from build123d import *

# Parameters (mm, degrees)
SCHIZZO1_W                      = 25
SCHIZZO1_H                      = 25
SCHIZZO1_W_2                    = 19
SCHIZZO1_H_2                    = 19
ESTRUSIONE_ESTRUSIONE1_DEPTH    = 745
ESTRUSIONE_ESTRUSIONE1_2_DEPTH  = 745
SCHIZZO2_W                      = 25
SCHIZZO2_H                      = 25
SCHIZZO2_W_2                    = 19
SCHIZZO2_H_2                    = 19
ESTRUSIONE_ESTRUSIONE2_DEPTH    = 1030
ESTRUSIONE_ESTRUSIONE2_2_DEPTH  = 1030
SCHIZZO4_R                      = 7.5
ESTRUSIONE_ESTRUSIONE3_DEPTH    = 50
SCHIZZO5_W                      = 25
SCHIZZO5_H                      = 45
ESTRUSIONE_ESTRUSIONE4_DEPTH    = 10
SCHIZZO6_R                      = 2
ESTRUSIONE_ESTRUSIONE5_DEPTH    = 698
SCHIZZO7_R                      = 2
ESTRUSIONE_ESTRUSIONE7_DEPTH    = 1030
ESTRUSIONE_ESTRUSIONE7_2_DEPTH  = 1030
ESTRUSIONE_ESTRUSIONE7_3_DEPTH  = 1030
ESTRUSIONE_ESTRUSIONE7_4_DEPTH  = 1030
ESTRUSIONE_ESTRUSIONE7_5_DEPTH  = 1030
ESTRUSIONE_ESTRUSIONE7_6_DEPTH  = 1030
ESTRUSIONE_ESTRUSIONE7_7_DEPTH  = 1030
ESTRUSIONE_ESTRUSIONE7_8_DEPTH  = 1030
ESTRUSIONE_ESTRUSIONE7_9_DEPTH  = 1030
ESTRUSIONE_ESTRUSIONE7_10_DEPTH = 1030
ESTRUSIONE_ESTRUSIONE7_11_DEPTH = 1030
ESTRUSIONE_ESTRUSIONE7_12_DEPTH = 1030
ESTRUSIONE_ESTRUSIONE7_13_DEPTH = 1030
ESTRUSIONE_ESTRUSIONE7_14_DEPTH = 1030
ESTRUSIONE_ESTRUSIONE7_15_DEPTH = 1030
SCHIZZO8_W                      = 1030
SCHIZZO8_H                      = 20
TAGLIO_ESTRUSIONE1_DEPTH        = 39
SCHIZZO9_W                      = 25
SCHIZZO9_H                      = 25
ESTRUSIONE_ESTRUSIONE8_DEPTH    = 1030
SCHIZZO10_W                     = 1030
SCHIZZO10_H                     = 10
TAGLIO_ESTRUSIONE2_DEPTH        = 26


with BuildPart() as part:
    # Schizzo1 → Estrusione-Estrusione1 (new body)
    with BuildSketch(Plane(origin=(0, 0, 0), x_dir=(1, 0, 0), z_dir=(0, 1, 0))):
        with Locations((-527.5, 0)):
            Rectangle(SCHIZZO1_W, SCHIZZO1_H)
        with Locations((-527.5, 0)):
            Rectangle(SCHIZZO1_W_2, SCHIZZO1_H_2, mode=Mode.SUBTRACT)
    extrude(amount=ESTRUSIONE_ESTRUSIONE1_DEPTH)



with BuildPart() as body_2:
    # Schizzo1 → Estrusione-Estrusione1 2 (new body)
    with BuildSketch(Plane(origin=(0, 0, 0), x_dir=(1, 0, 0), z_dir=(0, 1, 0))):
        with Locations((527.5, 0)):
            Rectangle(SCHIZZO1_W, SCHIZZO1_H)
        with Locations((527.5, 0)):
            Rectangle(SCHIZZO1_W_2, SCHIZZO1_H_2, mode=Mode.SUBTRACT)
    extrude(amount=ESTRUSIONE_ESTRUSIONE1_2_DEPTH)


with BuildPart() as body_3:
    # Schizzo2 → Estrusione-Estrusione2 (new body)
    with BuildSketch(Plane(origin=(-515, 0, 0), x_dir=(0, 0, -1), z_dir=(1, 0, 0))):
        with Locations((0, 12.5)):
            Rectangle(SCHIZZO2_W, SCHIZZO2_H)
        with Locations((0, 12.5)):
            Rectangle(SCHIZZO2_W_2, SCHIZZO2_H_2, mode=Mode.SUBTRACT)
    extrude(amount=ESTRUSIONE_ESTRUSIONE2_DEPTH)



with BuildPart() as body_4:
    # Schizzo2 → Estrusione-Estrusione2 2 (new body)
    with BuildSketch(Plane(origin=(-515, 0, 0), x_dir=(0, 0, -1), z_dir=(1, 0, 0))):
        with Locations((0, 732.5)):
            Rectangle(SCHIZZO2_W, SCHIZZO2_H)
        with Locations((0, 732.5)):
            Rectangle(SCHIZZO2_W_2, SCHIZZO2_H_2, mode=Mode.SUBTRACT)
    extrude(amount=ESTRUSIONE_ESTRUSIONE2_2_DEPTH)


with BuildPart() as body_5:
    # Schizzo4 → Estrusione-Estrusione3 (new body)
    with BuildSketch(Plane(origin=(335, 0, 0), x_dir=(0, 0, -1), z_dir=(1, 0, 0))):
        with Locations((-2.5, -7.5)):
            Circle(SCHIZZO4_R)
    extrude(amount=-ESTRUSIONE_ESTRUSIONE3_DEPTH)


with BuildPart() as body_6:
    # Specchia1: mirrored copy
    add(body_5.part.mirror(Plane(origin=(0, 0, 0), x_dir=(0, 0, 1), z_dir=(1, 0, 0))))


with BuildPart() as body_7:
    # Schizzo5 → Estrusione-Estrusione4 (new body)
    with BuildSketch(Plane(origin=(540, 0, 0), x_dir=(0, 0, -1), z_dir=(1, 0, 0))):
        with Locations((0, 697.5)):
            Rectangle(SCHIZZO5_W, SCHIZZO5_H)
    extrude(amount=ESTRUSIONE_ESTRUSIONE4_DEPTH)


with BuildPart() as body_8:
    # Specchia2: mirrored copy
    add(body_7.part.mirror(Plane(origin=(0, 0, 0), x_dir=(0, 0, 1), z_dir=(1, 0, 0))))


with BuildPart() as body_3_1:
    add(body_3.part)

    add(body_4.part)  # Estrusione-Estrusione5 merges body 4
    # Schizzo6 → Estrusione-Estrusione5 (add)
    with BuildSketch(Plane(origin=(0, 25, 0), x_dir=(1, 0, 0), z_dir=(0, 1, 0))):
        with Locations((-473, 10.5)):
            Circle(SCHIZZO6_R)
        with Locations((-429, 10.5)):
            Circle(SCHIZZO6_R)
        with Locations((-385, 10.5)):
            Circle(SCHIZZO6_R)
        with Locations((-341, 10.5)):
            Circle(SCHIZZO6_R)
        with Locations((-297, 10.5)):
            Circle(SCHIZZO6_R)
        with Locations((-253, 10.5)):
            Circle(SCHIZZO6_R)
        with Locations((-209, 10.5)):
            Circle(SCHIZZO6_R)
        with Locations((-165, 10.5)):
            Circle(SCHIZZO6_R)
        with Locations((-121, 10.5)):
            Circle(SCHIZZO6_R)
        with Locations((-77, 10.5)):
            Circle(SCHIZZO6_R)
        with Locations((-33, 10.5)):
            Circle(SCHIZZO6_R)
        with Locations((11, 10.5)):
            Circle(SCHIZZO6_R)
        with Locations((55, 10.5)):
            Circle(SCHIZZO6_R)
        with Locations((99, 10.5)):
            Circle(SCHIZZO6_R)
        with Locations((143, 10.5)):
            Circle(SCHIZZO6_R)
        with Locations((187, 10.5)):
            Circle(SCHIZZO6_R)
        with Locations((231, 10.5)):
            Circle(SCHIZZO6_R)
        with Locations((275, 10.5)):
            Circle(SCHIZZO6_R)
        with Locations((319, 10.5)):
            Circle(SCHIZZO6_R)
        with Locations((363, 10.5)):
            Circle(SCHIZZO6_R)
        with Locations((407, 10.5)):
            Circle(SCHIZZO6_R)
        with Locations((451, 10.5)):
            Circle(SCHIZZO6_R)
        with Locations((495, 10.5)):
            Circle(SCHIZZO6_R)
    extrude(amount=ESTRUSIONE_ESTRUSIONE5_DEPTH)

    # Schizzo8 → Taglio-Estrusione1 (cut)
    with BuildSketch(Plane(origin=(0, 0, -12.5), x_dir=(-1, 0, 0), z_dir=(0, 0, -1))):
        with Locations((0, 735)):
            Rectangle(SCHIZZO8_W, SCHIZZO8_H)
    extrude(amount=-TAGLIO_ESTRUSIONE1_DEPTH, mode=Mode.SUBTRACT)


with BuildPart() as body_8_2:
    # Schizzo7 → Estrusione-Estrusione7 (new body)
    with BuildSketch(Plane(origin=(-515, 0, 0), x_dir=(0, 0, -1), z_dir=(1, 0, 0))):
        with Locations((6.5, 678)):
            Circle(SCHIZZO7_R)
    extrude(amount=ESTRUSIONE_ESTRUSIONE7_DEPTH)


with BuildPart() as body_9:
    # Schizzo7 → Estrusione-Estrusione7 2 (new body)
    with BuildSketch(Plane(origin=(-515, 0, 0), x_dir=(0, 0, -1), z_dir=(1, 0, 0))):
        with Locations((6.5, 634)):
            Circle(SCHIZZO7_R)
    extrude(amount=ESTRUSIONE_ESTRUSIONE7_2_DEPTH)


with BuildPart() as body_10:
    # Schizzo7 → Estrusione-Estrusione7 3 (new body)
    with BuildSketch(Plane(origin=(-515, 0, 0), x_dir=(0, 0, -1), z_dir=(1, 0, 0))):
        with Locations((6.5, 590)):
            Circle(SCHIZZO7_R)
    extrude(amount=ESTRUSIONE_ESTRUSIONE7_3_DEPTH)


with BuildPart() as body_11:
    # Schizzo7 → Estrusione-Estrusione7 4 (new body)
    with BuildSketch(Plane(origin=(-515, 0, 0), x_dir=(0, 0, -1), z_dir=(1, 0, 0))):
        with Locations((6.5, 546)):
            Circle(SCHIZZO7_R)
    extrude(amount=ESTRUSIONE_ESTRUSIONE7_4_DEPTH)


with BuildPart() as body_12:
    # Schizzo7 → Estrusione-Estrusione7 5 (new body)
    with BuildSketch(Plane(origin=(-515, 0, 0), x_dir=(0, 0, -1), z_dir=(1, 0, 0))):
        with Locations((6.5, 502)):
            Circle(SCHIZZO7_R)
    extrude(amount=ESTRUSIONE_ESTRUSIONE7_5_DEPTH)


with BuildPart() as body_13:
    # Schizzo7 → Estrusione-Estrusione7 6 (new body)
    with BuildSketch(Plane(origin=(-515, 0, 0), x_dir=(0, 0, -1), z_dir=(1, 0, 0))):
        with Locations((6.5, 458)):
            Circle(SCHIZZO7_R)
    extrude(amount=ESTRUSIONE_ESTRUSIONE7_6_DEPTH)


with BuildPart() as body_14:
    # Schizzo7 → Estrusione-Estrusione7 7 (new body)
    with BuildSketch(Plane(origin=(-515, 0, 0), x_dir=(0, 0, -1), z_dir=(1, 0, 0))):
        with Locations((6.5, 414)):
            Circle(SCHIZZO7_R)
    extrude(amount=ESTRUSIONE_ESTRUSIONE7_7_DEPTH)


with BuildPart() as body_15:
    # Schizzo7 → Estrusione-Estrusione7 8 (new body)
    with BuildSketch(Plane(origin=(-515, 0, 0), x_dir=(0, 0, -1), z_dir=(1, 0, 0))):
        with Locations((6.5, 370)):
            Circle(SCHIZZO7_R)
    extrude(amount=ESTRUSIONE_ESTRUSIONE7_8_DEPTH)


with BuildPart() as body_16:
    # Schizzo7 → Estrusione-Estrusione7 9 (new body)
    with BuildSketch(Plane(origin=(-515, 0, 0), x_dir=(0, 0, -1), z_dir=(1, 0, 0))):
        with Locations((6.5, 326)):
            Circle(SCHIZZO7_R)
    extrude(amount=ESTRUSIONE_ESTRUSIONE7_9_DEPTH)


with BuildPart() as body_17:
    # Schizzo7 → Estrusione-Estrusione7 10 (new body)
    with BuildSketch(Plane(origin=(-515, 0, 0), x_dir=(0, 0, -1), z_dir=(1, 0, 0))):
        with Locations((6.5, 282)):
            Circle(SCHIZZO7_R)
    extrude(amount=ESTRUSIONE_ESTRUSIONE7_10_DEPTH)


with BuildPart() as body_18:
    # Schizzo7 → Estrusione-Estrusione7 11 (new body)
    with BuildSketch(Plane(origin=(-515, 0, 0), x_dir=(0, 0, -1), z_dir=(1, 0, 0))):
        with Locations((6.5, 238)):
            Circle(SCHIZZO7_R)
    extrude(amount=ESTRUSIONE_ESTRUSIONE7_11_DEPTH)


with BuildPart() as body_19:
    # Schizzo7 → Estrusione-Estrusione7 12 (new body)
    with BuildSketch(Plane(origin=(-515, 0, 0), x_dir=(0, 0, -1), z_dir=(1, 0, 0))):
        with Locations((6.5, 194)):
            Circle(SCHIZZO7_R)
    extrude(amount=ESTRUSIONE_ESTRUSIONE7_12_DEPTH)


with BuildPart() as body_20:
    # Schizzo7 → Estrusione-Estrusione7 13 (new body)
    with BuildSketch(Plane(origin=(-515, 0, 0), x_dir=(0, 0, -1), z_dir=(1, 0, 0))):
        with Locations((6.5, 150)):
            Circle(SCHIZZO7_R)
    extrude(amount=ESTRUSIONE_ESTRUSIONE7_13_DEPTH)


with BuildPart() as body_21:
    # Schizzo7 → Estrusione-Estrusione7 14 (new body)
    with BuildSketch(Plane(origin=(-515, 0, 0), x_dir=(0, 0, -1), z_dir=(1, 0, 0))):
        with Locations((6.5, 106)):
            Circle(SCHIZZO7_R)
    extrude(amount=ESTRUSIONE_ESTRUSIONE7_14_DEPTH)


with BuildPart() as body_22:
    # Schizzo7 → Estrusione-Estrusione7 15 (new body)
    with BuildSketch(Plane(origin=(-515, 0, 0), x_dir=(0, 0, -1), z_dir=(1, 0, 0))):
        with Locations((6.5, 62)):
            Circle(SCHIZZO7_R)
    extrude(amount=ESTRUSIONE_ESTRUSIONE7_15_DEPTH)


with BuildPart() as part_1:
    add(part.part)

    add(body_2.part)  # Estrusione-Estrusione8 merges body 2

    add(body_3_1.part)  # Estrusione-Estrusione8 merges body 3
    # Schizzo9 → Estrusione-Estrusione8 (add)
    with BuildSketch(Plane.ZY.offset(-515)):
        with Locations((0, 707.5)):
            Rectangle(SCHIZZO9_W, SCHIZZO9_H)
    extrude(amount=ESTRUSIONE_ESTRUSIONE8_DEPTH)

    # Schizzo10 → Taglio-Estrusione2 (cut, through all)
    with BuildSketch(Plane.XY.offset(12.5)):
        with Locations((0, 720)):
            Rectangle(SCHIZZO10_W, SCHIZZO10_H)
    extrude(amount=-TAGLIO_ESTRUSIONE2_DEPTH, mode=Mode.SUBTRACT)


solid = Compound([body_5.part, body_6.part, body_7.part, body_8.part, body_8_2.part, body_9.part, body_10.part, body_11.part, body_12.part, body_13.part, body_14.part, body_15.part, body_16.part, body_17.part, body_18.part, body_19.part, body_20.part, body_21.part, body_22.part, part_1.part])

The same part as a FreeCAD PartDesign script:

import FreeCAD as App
import Part
import Sketcher
Q = App.Units.Quantity


def add_polygon(sketch, points):
    """Adds a closed chain of lines whose ends are joined by coincident constraints."""
    first, n = sketch.GeometryCount, len(points)
    for a, b in zip(points, points[1:] + points[:1]):
        sketch.addGeometry(Part.LineSegment(App.Vector(*a, 0), App.Vector(*b, 0)), False)
    for i in range(n):
        sketch.addConstraint(Sketcher.Constraint("Coincident", first + i, 2, first + (i + 1) % n, 1))

doc = App.newDocument("Part")
body = doc.addObject("PartDesign::Body", "Body")

# Sketch on XZ plane
sketch1 = doc.addObject("Sketcher::SketchObject", "Sketch")
body.addObject(sketch1)
sketch1.AttachmentSupport = (doc.XZ_Plane, [""])
sketch1.MapMode = "FlatFace"
add_polygon(sketch1, [(-540, -12.5), (-540, 12.5), (-515, 12.5), (-515, -12.5)])  # lines 0-3
add_polygon(sketch1, [(-518, 9.5), (-537, 9.5), (-537, -9.5), (-518, -9.5)])  # lines 4-7
sketch1.addConstraint([
    Sketcher.Constraint("Vertical", 0),
    Sketcher.Constraint("Horizontal", 1),
    Sketcher.Constraint("Vertical", 2),
    Sketcher.Constraint("Horizontal", 3),
    Sketcher.Constraint("Horizontal", 4),
    Sketcher.Constraint("Vertical", 5),
    Sketcher.Constraint("Horizontal", 6),
    Sketcher.Constraint("Vertical", 7),
    Sketcher.Constraint("Equal", 3, 0),
    Sketcher.Constraint("Equal", 6, 5),
    Sketcher.Constraint("DistanceX", 1, 1, 1, 2, Q("25 mm")),
    Sketcher.Constraint("DistanceX", 4, 2, 4, 1, Q("19 mm")),
    Sketcher.Constraint("DistanceX", 0, 2, -1, 1, Q("540 mm")),
    Sketcher.Constraint("DistanceX", 4, 2, -1, 1, Q("537 mm")),
    Sketcher.Constraint("DistanceY", 4, 2, 0, 2, Q("3 mm")),
    Sketcher.Constraint("DistanceY", -1, 1, 0, 2, Q("12.5 mm")),
])
pad1 = doc.addObject("PartDesign::Pad", "Pad")
body.addObject(pad1)
pad1.Profile = sketch1
pad1.Length = 745
pad1.Reversed = True
body2 = doc.addObject("PartDesign::Body", "Body001")

# Sketch on XZ plane
sketch2 = doc.addObject("Sketcher::SketchObject", "Sketch001")
body2.addObject(sketch2)
sketch2.AttachmentSupport = (doc.getObject("XZ_Plane001"), [""])
sketch2.MapMode = "FlatFace"
add_polygon(sketch2, [(515, -12.5), (515, 12.5), (540, 12.5), (540, -12.5)])  # lines 0-3
add_polygon(sketch2, [(537, 9.5), (518, 9.5), (518, -9.5), (537, -9.5)])  # lines 4-7
sketch2.addConstraint([
    Sketcher.Constraint("Vertical", 0),
    Sketcher.Constraint("Horizontal", 1),
    Sketcher.Constraint("Vertical", 2),
    Sketcher.Constraint("Horizontal", 3),
    Sketcher.Constraint("Horizontal", 4),
    Sketcher.Constraint("Vertical", 5),
    Sketcher.Constraint("Horizontal", 6),
    Sketcher.Constraint("Vertical", 7),
    Sketcher.Constraint("Equal", 3, 0),
    Sketcher.Constraint("Equal", 6, 5),
    Sketcher.Constraint("DistanceX", 1, 1, 1, 2, Q("25 mm")),
    Sketcher.Constraint("DistanceX", 4, 2, 4, 1, Q("19 mm")),
    Sketcher.Constraint("DistanceX", -1, 1, 0, 2, Q("515 mm")),
    Sketcher.Constraint("DistanceX", -1, 1, 4, 2, Q("518 mm")),
    Sketcher.Constraint("DistanceY", 4, 2, 0, 2, Q("3 mm")),
    Sketcher.Constraint("DistanceY", -1, 1, 0, 2, Q("12.5 mm")),
])
pad2 = doc.addObject("PartDesign::Pad", "Pad001")
body2.addObject(pad2)
pad2.Profile = sketch2
pad2.Length = 745
pad2.Reversed = True
body3 = doc.addObject("PartDesign::Body", "Body002")

# Sketch on YZ plane
sketch3 = doc.addObject("Sketcher::SketchObject", "Sketch002")
body3.addObject(sketch3)
sketch3.AttachmentSupport = (doc.getObject("YZ_Plane002"), [""])
sketch3.MapMode = "FlatFace"
sketch3.AttachmentOffset = App.Placement(App.Vector(0, 0, -515), App.Rotation())
add_polygon(sketch3, [(25, 12.5), (0, 12.5), (0, -12.5), (25, -12.5)])  # lines 0-3
add_polygon(sketch3, [(3, -9.5), (3, 9.5), (22, 9.5), (22, -9.5)])  # lines 4-7
sketch3.addConstraint([
    Sketcher.Constraint("Horizontal", 0),
    Sketcher.Constraint("Vertical", 1),
    Sketcher.Constraint("Horizontal", 2),
    Sketcher.Constraint("Vertical", 3),
    Sketcher.Constraint("Vertical", 4),
    Sketcher.Constraint("Horizontal", 5),
    Sketcher.Constraint("Vertical", 6),
    Sketcher.Constraint("Horizontal", 7),
    Sketcher.Constraint("Symmetric", 0, 2, 1, 2, -1, 1),
    Sketcher.Constraint("Equal", 2, 1),
    Sketcher.Constraint("Equal", 7, 4),
    Sketcher.Constraint("DistanceX", 0, 2, 0, 1, Q("25 mm")),
    Sketcher.Constraint("DistanceX", 5, 1, 5, 2, Q("19 mm")),
    Sketcher.Constraint("DistanceX", -1, 1, 4, 2, Q("3 mm")),
    Sketcher.Constraint("DistanceY", 4, 2, 0, 2, Q("3 mm")),
])
pad3 = doc.addObject("PartDesign::Pad", "Pad002")
body3.addObject(pad3)
pad3.Profile = sketch3
pad3.Length = 1030
body4 = doc.addObject("PartDesign::Body", "Body003")

# Sketch on YZ plane
sketch4 = doc.addObject("Sketcher::SketchObject", "Sketch003")
body4.addObject(sketch4)
sketch4.AttachmentSupport = (doc.getObject("YZ_Plane003"), [""])
sketch4.MapMode = "FlatFace"
sketch4.AttachmentOffset = App.Placement(App.Vector(0, 0, -515), App.Rotation())
add_polygon(sketch4, [(745, 12.5), (720, 12.5), (720, -12.5), (745, -12.5)])  # lines 0-3
add_polygon(sketch4, [(723, -9.5), (723, 9.5), (742, 9.5), (742, -9.5)])  # lines 4-7
sketch4.addConstraint([
    Sketcher.Constraint("Horizontal", 0),
    Sketcher.Constraint("Vertical", 1),
    Sketcher.Constraint("Horizontal", 2),
    Sketcher.Constraint("Vertical", 3),
    Sketcher.Constraint("Vertical", 4),
    Sketcher.Constraint("Horizontal", 5),
    Sketcher.Constraint("Vertical", 6),
    Sketcher.Constraint("Horizontal", 7),
    Sketcher.Constraint("Equal", 2, 1),
    Sketcher.Constraint("Equal", 7, 4),
    Sketcher.Constraint("DistanceX", 0, 2, 0, 1, Q("25 mm")),
    Sketcher.Constraint("DistanceX", 5, 1, 5, 2, Q("19 mm")),
    Sketcher.Constraint("DistanceX", -1, 1, 0, 2, Q("720 mm")),
    Sketcher.Constraint("DistanceX", -1, 1, 4, 2, Q("723 mm")),
    Sketcher.Constraint("DistanceY", 4, 2, 0, 2, Q("3 mm")),
    Sketcher.Constraint("DistanceY", -1, 1, 0, 2, Q("12.5 mm")),
])
pad4 = doc.addObject("PartDesign::Pad", "Pad003")
body4.addObject(pad4)
pad4.Profile = sketch4
pad4.Length = 1030
body5 = doc.addObject("PartDesign::Body", "Body004")

# Sketch on YZ plane
sketch5 = doc.addObject("Sketcher::SketchObject", "Sketch004")
body5.addObject(sketch5)
sketch5.AttachmentSupport = (doc.getObject("YZ_Plane004"), [""])
sketch5.MapMode = "FlatFace"
sketch5.AttachmentOffset = App.Placement(App.Vector(0, 0, 335), App.Rotation())
sketch5.addGeometry(Part.Circle(App.Vector(-7.5, 2.5, 0), App.Vector(0, 0, 1), 7.5), False)
sketch5.addConstraint([
    Sketcher.Constraint("Diameter", 0, Q("15 mm")),
    Sketcher.Constraint("DistanceX", 0, 3, -1, 1, Q("7.5 mm")),
    Sketcher.Constraint("DistanceY", -1, 1, 0, 3, Q("2.5 mm")),
])
pad5 = doc.addObject("PartDesign::Pad", "Pad004")
body5.addObject(pad5)
pad5.Profile = sketch5
pad5.Length = 50
pad5.Reversed = True
body6 = doc.addObject("PartDesign::Body", "Body005")
doc.recompute()

mirroring = doc.addObject("Part::Mirroring", "Mirroring")
mirroring.Source = body5
mirroring.Base = App.Vector(0, 0, 0)
mirroring.Normal = App.Vector(1, 0, 0)
body6.BaseFeature = mirroring
doc.recompute()
body7 = doc.addObject("PartDesign::Body", "Body006")

# Sketch on YZ plane
sketch6 = doc.addObject("Sketcher::SketchObject", "Sketch005")
body7.addObject(sketch6)
sketch6.AttachmentSupport = (doc.getObject("YZ_Plane006"), [""])
sketch6.MapMode = "FlatFace"
sketch6.AttachmentOffset = App.Placement(App.Vector(0, 0, 540), App.Rotation())
add_polygon(sketch6, [(720, 12.5), (675, 12.5), (675, -12.5), (720, -12.5)])  # lines 0-3
sketch6.addConstraint([
    Sketcher.Constraint("Horizontal", 0),
    Sketcher.Constraint("Vertical", 1),
    Sketcher.Constraint("Horizontal", 2),
    Sketcher.Constraint("Vertical", 3),
    Sketcher.Constraint("DistanceX", 0, 2, 0, 1, Q("45 mm")),
    Sketcher.Constraint("DistanceY", 1, 2, 1, 1, Q("25 mm")),
    Sketcher.Constraint("DistanceX", -1, 1, 0, 2, Q("675 mm")),
    Sketcher.Constraint("DistanceY", -1, 1, 0, 2, Q("12.5 mm")),
])
pad6 = doc.addObject("PartDesign::Pad", "Pad005")
body7.addObject(pad6)
pad6.Profile = sketch6
pad6.Length = 10
body8 = doc.addObject("PartDesign::Body", "Body007")
doc.recompute()

mirroring2 = doc.addObject("Part::Mirroring", "Mirroring001")
mirroring2.Source = body7
mirroring2.Base = App.Vector(0, 0, 0)
mirroring2.Normal = App.Vector(1, 0, 0)
body8.BaseFeature = mirroring2
doc.recompute()
body3.AllowCompound = True
doc.recompute()

boolean = doc.addObject("PartDesign::Boolean", "Boolean")
body3.addObject(boolean)
boolean.Type = "Fuse"
boolean.addObjects([body4])

# Sketch on XZ plane
sketch7 = doc.addObject("Sketcher::SketchObject", "Sketch006")
body3.addObject(sketch7)
sketch7.AttachmentSupport = (doc.getObject("XZ_Plane002"), [""])
sketch7.MapMode = "FlatFace"
sketch7.AttachmentOffset = App.Placement(App.Vector(0, 0, -25), App.Rotation())
sketch7.addGeometry([
    Part.Circle(App.Vector(-473, -10.5, 0), App.Vector(0, 0, 1), 2),  # 0
    Part.Circle(App.Vector(-429, -10.5, 0), App.Vector(0, 0, 1), 2),  # 1
    Part.Circle(App.Vector(-385, -10.5, 0), App.Vector(0, 0, 1), 2),  # 2
    Part.Circle(App.Vector(-341, -10.5, 0), App.Vector(0, 0, 1), 2),  # 3
    Part.Circle(App.Vector(-297, -10.5, 0), App.Vector(0, 0, 1), 2),  # 4
    Part.Circle(App.Vector(-253, -10.5, 0), App.Vector(0, 0, 1), 2),  # 5
    Part.Circle(App.Vector(-209, -10.5, 0), App.Vector(0, 0, 1), 2),  # 6
    Part.Circle(App.Vector(-165, -10.5, 0), App.Vector(0, 0, 1), 2),  # 7
    Part.Circle(App.Vector(-121, -10.5, 0), App.Vector(0, 0, 1), 2),  # 8
    Part.Circle(App.Vector(-77, -10.5, 0), App.Vector(0, 0, 1), 2),  # 9
    Part.Circle(App.Vector(-33, -10.5, 0), App.Vector(0, 0, 1), 2),  # 10
    Part.Circle(App.Vector(11, -10.5, 0), App.Vector(0, 0, 1), 2),  # 11
    Part.Circle(App.Vector(55, -10.5, 0), App.Vector(0, 0, 1), 2),  # 12
    Part.Circle(App.Vector(99, -10.5, 0), App.Vector(0, 0, 1), 2),  # 13
    Part.Circle(App.Vector(143, -10.5, 0), App.Vector(0, 0, 1), 2),  # 14
    Part.Circle(App.Vector(187, -10.5, 0), App.Vector(0, 0, 1), 2),  # 15
    Part.Circle(App.Vector(231, -10.5, 0), App.Vector(0, 0, 1), 2),  # 16
    Part.Circle(App.Vector(275, -10.5, 0), App.Vector(0, 0, 1), 2),  # 17
    Part.Circle(App.Vector(319, -10.5, 0), App.Vector(0, 0, 1), 2),  # 18
    Part.Circle(App.Vector(363, -10.5, 0), App.Vector(0, 0, 1), 2),  # 19
    Part.Circle(App.Vector(407, -10.5, 0), App.Vector(0, 0, 1), 2),  # 20
    Part.Circle(App.Vector(451, -10.5, 0), App.Vector(0, 0, 1), 2),  # 21
    Part.Circle(App.Vector(495, -10.5, 0), App.Vector(0, 0, 1), 2),  # 22
], False)
sketch7.addConstraint([
    Sketcher.Constraint("Equal", 0, 1),
    Sketcher.Constraint("Equal", 1, 2),
    Sketcher.Constraint("Equal", 2, 3),
    Sketcher.Constraint("Equal", 3, 4),
    Sketcher.Constraint("Equal", 4, 5),
    Sketcher.Constraint("Equal", 5, 6),
    Sketcher.Constraint("Equal", 6, 7),
    Sketcher.Constraint("Equal", 7, 8),
    Sketcher.Constraint("Equal", 8, 9),
    Sketcher.Constraint("Equal", 9, 10),
    Sketcher.Constraint("Equal", 10, 11),
    Sketcher.Constraint("Equal", 11, 12),
    Sketcher.Constraint("Equal", 12, 13),
    Sketcher.Constraint("Equal", 13, 14),
    Sketcher.Constraint("Equal", 14, 15),
    Sketcher.Constraint("Equal", 15, 16),
    Sketcher.Constraint("Equal", 16, 17),
    Sketcher.Constraint("Equal", 17, 18),
    Sketcher.Constraint("Equal", 18, 19),
    Sketcher.Constraint("Equal", 19, 20),
    Sketcher.Constraint("Equal", 20, 21),
    Sketcher.Constraint("Equal", 21, 22),
    Sketcher.Constraint("Horizontal", 0, 3, 1, 3),
    Sketcher.Constraint("Horizontal", 1, 3, 2, 3),
    Sketcher.Constraint("Horizontal", 2, 3, 3, 3),
    Sketcher.Constraint("Horizontal", 3, 3, 4, 3),
    Sketcher.Constraint("Horizontal", 4, 3, 5, 3),
    Sketcher.Constraint("Horizontal", 5, 3, 6, 3),
    Sketcher.Constraint("Horizontal", 6, 3, 7, 3),
    Sketcher.Constraint("Horizontal", 7, 3, 8, 3),
    Sketcher.Constraint("Horizontal", 8, 3, 9, 3),
    Sketcher.Constraint("Horizontal", 9, 3, 10, 3),
    Sketcher.Constraint("Horizontal", 10, 3, 11, 3),
    Sketcher.Constraint("Horizontal", 11, 3, 12, 3),
    Sketcher.Constraint("Horizontal", 12, 3, 13, 3),
    Sketcher.Constraint("Horizontal", 13, 3, 14, 3),
    Sketcher.Constraint("Horizontal", 14, 3, 15, 3),
    Sketcher.Constraint("Horizontal", 15, 3, 16, 3),
    Sketcher.Constraint("Horizontal", 16, 3, 17, 3),
    Sketcher.Constraint("Horizontal", 17, 3, 18, 3),
    Sketcher.Constraint("Horizontal", 18, 3, 19, 3),
    Sketcher.Constraint("Horizontal", 19, 3, 20, 3),
    Sketcher.Constraint("Horizontal", 20, 3, 21, 3),
    Sketcher.Constraint("Horizontal", 21, 3, 22, 3),
    Sketcher.Constraint("Diameter", 0, Q("4 mm")),
    Sketcher.Constraint("DistanceX", 0, 3, -1, 1, Q("473 mm")),
    Sketcher.Constraint("DistanceX", 1, 3, -1, 1, Q("429 mm")),
    Sketcher.Constraint("DistanceX", 2, 3, -1, 1, Q("385 mm")),
    Sketcher.Constraint("DistanceX", 3, 3, -1, 1, Q("341 mm")),
    Sketcher.Constraint("DistanceX", 4, 3, -1, 1, Q("297 mm")),
    Sketcher.Constraint("DistanceX", 5, 3, -1, 1, Q("253 mm")),
    Sketcher.Constraint("DistanceX", 6, 3, -1, 1, Q("209 mm")),
    Sketcher.Constraint("DistanceX", 7, 3, -1, 1, Q("165 mm")),
    Sketcher.Constraint("DistanceX", 8, 3, -1, 1, Q("121 mm")),
    Sketcher.Constraint("DistanceX", 9, 3, -1, 1, Q("77 mm")),
    Sketcher.Constraint("DistanceX", 10, 3, -1, 1, Q("33 mm")),
    Sketcher.Constraint("DistanceX", -1, 1, 11, 3, Q("11 mm")),
    Sketcher.Constraint("DistanceX", -1, 1, 12, 3, Q("55 mm")),
    Sketcher.Constraint("DistanceX", -1, 1, 13, 3, Q("99 mm")),
    Sketcher.Constraint("DistanceX", -1, 1, 14, 3, Q("143 mm")),
    Sketcher.Constraint("DistanceX", -1, 1, 15, 3, Q("187 mm")),
    Sketcher.Constraint("DistanceX", -1, 1, 16, 3, Q("231 mm")),
    Sketcher.Constraint("DistanceX", -1, 1, 17, 3, Q("275 mm")),
    Sketcher.Constraint("DistanceX", -1, 1, 18, 3, Q("319 mm")),
    Sketcher.Constraint("DistanceX", -1, 1, 19, 3, Q("363 mm")),
    Sketcher.Constraint("DistanceX", -1, 1, 20, 3, Q("407 mm")),
    Sketcher.Constraint("DistanceX", -1, 1, 21, 3, Q("451 mm")),
    Sketcher.Constraint("DistanceX", -1, 1, 22, 3, Q("495 mm")),
    Sketcher.Constraint("DistanceY", 0, 3, -1, 1, Q("10.5 mm")),
])
pad7 = doc.addObject("PartDesign::Pad", "Pad006")
body3.addObject(pad7)
pad7.Profile = sketch7
pad7.Length = 698
pad7.Reversed = True

# Sketch on XY plane
sketch8 = doc.addObject("Sketcher::SketchObject", "Sketch007")
body3.addObject(sketch8)
sketch8.AttachmentSupport = (doc.getObject("XY_Plane002"), [""])
sketch8.MapMode = "FlatFace"
sketch8.AttachmentOffset = App.Placement(App.Vector(0, 0, -12.5), App.Rotation())
add_polygon(sketch8, [(515, 745), (515, 725), (-515, 725), (-515, 745)])  # lines 0-3
sketch8.addConstraint([
    Sketcher.Constraint("Vertical", 0),
    Sketcher.Constraint("Horizontal", 1),
    Sketcher.Constraint("Vertical", 2),
    Sketcher.Constraint("Horizontal", 3),
    Sketcher.Constraint("DistanceX", 1, 2, 1, 1, Q("1030 mm")),
    Sketcher.Constraint("DistanceY", 0, 2, 0, 1, Q("20 mm")),
    Sketcher.Constraint("DistanceX", -1, 1, 0, 2, Q("515 mm")),
    Sketcher.Constraint("DistanceY", -1, 1, 0, 2, Q("725 mm")),
])
pocket1 = doc.addObject("PartDesign::Pocket", "Pocket")
body3.addObject(pocket1)
pocket1.Profile = sketch8
pocket1.Length = 39
pocket1.Reversed = True
body9 = doc.addObject("PartDesign::Body", "Body008")

# Sketch on YZ plane
sketch9 = doc.addObject("Sketcher::SketchObject", "Sketch008")
body9.addObject(sketch9)
sketch9.AttachmentSupport = (doc.getObject("YZ_Plane008"), [""])
sketch9.MapMode = "FlatFace"
sketch9.AttachmentOffset = App.Placement(App.Vector(0, 0, -515), App.Rotation())
sketch9.addGeometry(Part.Circle(App.Vector(678, -6.5, 0), App.Vector(0, 0, 1), 2), False)
sketch9.addConstraint([
    Sketcher.Constraint("Diameter", 0, Q("4 mm")),
    Sketcher.Constraint("DistanceX", -1, 1, 0, 3, Q("678 mm")),
    Sketcher.Constraint("DistanceY", 0, 3, -1, 1, Q("6.5 mm")),
])
pad8 = doc.addObject("PartDesign::Pad", "Pad007")
body9.addObject(pad8)
pad8.Profile = sketch9
pad8.Length = 1030
body10 = doc.addObject("PartDesign::Body", "Body009")

# Sketch on YZ plane
sketch10 = doc.addObject("Sketcher::SketchObject", "Sketch009")
body10.addObject(sketch10)
sketch10.AttachmentSupport = (doc.getObject("YZ_Plane009"), [""])
sketch10.MapMode = "FlatFace"
sketch10.AttachmentOffset = App.Placement(App.Vector(0, 0, -515), App.Rotation())
sketch10.addGeometry(Part.Circle(App.Vector(634, -6.5, 0), App.Vector(0, 0, 1), 2), False)
sketch10.addConstraint([
    Sketcher.Constraint("Diameter", 0, Q("4 mm")),
    Sketcher.Constraint("DistanceX", -1, 1, 0, 3, Q("634 mm")),
    Sketcher.Constraint("DistanceY", 0, 3, -1, 1, Q("6.5 mm")),
])
pad9 = doc.addObject("PartDesign::Pad", "Pad008")
body10.addObject(pad9)
pad9.Profile = sketch10
pad9.Length = 1030
body11 = doc.addObject("PartDesign::Body", "Body010")

# Sketch on YZ plane
sketch11 = doc.addObject("Sketcher::SketchObject", "Sketch010")
body11.addObject(sketch11)
sketch11.AttachmentSupport = (doc.getObject("YZ_Plane010"), [""])
sketch11.MapMode = "FlatFace"
sketch11.AttachmentOffset = App.Placement(App.Vector(0, 0, -515), App.Rotation())
sketch11.addGeometry(Part.Circle(App.Vector(590, -6.5, 0), App.Vector(0, 0, 1), 2), False)
sketch11.addConstraint([
    Sketcher.Constraint("Diameter", 0, Q("4 mm")),
    Sketcher.Constraint("DistanceX", -1, 1, 0, 3, Q("590 mm")),
    Sketcher.Constraint("DistanceY", 0, 3, -1, 1, Q("6.5 mm")),
])
pad10 = doc.addObject("PartDesign::Pad", "Pad009")
body11.addObject(pad10)
pad10.Profile = sketch11
pad10.Length = 1030
body12 = doc.addObject("PartDesign::Body", "Body011")

# Sketch on YZ plane
sketch12 = doc.addObject("Sketcher::SketchObject", "Sketch011")
body12.addObject(sketch12)
sketch12.AttachmentSupport = (doc.getObject("YZ_Plane011"), [""])
sketch12.MapMode = "FlatFace"
sketch12.AttachmentOffset = App.Placement(App.Vector(0, 0, -515), App.Rotation())
sketch12.addGeometry(Part.Circle(App.Vector(546, -6.5, 0), App.Vector(0, 0, 1), 2), False)
sketch12.addConstraint([
    Sketcher.Constraint("Diameter", 0, Q("4 mm")),
    Sketcher.Constraint("DistanceX", -1, 1, 0, 3, Q("546 mm")),
    Sketcher.Constraint("DistanceY", 0, 3, -1, 1, Q("6.5 mm")),
])
pad11 = doc.addObject("PartDesign::Pad", "Pad010")
body12.addObject(pad11)
pad11.Profile = sketch12
pad11.Length = 1030
body13 = doc.addObject("PartDesign::Body", "Body012")

# Sketch on YZ plane
sketch13 = doc.addObject("Sketcher::SketchObject", "Sketch012")
body13.addObject(sketch13)
sketch13.AttachmentSupport = (doc.getObject("YZ_Plane012"), [""])
sketch13.MapMode = "FlatFace"
sketch13.AttachmentOffset = App.Placement(App.Vector(0, 0, -515), App.Rotation())
sketch13.addGeometry(Part.Circle(App.Vector(502, -6.5, 0), App.Vector(0, 0, 1), 2), False)
sketch13.addConstraint([
    Sketcher.Constraint("Diameter", 0, Q("4 mm")),
    Sketcher.Constraint("DistanceX", -1, 1, 0, 3, Q("502 mm")),
    Sketcher.Constraint("DistanceY", 0, 3, -1, 1, Q("6.5 mm")),
])
pad12 = doc.addObject("PartDesign::Pad", "Pad011")
body13.addObject(pad12)
pad12.Profile = sketch13
pad12.Length = 1030
body14 = doc.addObject("PartDesign::Body", "Body013")

# Sketch on YZ plane
sketch14 = doc.addObject("Sketcher::SketchObject", "Sketch013")
body14.addObject(sketch14)
sketch14.AttachmentSupport = (doc.getObject("YZ_Plane013"), [""])
sketch14.MapMode = "FlatFace"
sketch14.AttachmentOffset = App.Placement(App.Vector(0, 0, -515), App.Rotation())
sketch14.addGeometry(Part.Circle(App.Vector(458, -6.5, 0), App.Vector(0, 0, 1), 2), False)
sketch14.addConstraint([
    Sketcher.Constraint("Diameter", 0, Q("4 mm")),
    Sketcher.Constraint("DistanceX", -1, 1, 0, 3, Q("458 mm")),
    Sketcher.Constraint("DistanceY", 0, 3, -1, 1, Q("6.5 mm")),
])
pad13 = doc.addObject("PartDesign::Pad", "Pad012")
body14.addObject(pad13)
pad13.Profile = sketch14
pad13.Length = 1030
body15 = doc.addObject("PartDesign::Body", "Body014")

# Sketch on YZ plane
sketch15 = doc.addObject("Sketcher::SketchObject", "Sketch014")
body15.addObject(sketch15)
sketch15.AttachmentSupport = (doc.getObject("YZ_Plane014"), [""])
sketch15.MapMode = "FlatFace"
sketch15.AttachmentOffset = App.Placement(App.Vector(0, 0, -515), App.Rotation())
sketch15.addGeometry(Part.Circle(App.Vector(414, -6.5, 0), App.Vector(0, 0, 1), 2), False)
sketch15.addConstraint([
    Sketcher.Constraint("Diameter", 0, Q("4 mm")),
    Sketcher.Constraint("DistanceX", -1, 1, 0, 3, Q("414 mm")),
    Sketcher.Constraint("DistanceY", 0, 3, -1, 1, Q("6.5 mm")),
])
pad14 = doc.addObject("PartDesign::Pad", "Pad013")
body15.addObject(pad14)
pad14.Profile = sketch15
pad14.Length = 1030
body16 = doc.addObject("PartDesign::Body", "Body015")

# Sketch on YZ plane
sketch16 = doc.addObject("Sketcher::SketchObject", "Sketch015")
body16.addObject(sketch16)
sketch16.AttachmentSupport = (doc.getObject("YZ_Plane015"), [""])
sketch16.MapMode = "FlatFace"
sketch16.AttachmentOffset = App.Placement(App.Vector(0, 0, -515), App.Rotation())
sketch16.addGeometry(Part.Circle(App.Vector(370, -6.5, 0), App.Vector(0, 0, 1), 2), False)
sketch16.addConstraint([
    Sketcher.Constraint("Diameter", 0, Q("4 mm")),
    Sketcher.Constraint("DistanceX", -1, 1, 0, 3, Q("370 mm")),
    Sketcher.Constraint("DistanceY", 0, 3, -1, 1, Q("6.5 mm")),
])
pad15 = doc.addObject("PartDesign::Pad", "Pad014")
body16.addObject(pad15)
pad15.Profile = sketch16
pad15.Length = 1030
body17 = doc.addObject("PartDesign::Body", "Body016")

# Sketch on YZ plane
sketch17 = doc.addObject("Sketcher::SketchObject", "Sketch016")
body17.addObject(sketch17)
sketch17.AttachmentSupport = (doc.getObject("YZ_Plane016"), [""])
sketch17.MapMode = "FlatFace"
sketch17.AttachmentOffset = App.Placement(App.Vector(0, 0, -515), App.Rotation())
sketch17.addGeometry(Part.Circle(App.Vector(326, -6.5, 0), App.Vector(0, 0, 1), 2), False)
sketch17.addConstraint([
    Sketcher.Constraint("Diameter", 0, Q("4 mm")),
    Sketcher.Constraint("DistanceX", -1, 1, 0, 3, Q("326 mm")),
    Sketcher.Constraint("DistanceY", 0, 3, -1, 1, Q("6.5 mm")),
])
pad16 = doc.addObject("PartDesign::Pad", "Pad015")
body17.addObject(pad16)
pad16.Profile = sketch17
pad16.Length = 1030
body18 = doc.addObject("PartDesign::Body", "Body017")

# Sketch on YZ plane
sketch18 = doc.addObject("Sketcher::SketchObject", "Sketch017")
body18.addObject(sketch18)
sketch18.AttachmentSupport = (doc.getObject("YZ_Plane017"), [""])
sketch18.MapMode = "FlatFace"
sketch18.AttachmentOffset = App.Placement(App.Vector(0, 0, -515), App.Rotation())
sketch18.addGeometry(Part.Circle(App.Vector(282, -6.5, 0), App.Vector(0, 0, 1), 2), False)
sketch18.addConstraint([
    Sketcher.Constraint("Diameter", 0, Q("4 mm")),
    Sketcher.Constraint("DistanceX", -1, 1, 0, 3, Q("282 mm")),
    Sketcher.Constraint("DistanceY", 0, 3, -1, 1, Q("6.5 mm")),
])
pad17 = doc.addObject("PartDesign::Pad", "Pad016")
body18.addObject(pad17)
pad17.Profile = sketch18
pad17.Length = 1030
body19 = doc.addObject("PartDesign::Body", "Body018")

# Sketch on YZ plane
sketch19 = doc.addObject("Sketcher::SketchObject", "Sketch018")
body19.addObject(sketch19)
sketch19.AttachmentSupport = (doc.getObject("YZ_Plane018"), [""])
sketch19.MapMode = "FlatFace"
sketch19.AttachmentOffset = App.Placement(App.Vector(0, 0, -515), App.Rotation())
sketch19.addGeometry(Part.Circle(App.Vector(238, -6.5, 0), App.Vector(0, 0, 1), 2), False)
sketch19.addConstraint([
    Sketcher.Constraint("Diameter", 0, Q("4 mm")),
    Sketcher.Constraint("DistanceX", -1, 1, 0, 3, Q("238 mm")),
    Sketcher.Constraint("DistanceY", 0, 3, -1, 1, Q("6.5 mm")),
])
pad18 = doc.addObject("PartDesign::Pad", "Pad017")
body19.addObject(pad18)
pad18.Profile = sketch19
pad18.Length = 1030
body20 = doc.addObject("PartDesign::Body", "Body019")

# Sketch on YZ plane
sketch20 = doc.addObject("Sketcher::SketchObject", "Sketch019")
body20.addObject(sketch20)
sketch20.AttachmentSupport = (doc.getObject("YZ_Plane019"), [""])
sketch20.MapMode = "FlatFace"
sketch20.AttachmentOffset = App.Placement(App.Vector(0, 0, -515), App.Rotation())
sketch20.addGeometry(Part.Circle(App.Vector(194, -6.5, 0), App.Vector(0, 0, 1), 2), False)
sketch20.addConstraint([
    Sketcher.Constraint("Diameter", 0, Q("4 mm")),
    Sketcher.Constraint("DistanceX", -1, 1, 0, 3, Q("194 mm")),
    Sketcher.Constraint("DistanceY", 0, 3, -1, 1, Q("6.5 mm")),
])
pad19 = doc.addObject("PartDesign::Pad", "Pad018")
body20.addObject(pad19)
pad19.Profile = sketch20
pad19.Length = 1030
body21 = doc.addObject("PartDesign::Body", "Body020")

# Sketch on YZ plane
sketch21 = doc.addObject("Sketcher::SketchObject", "Sketch020")
body21.addObject(sketch21)
sketch21.AttachmentSupport = (doc.getObject("YZ_Plane020"), [""])
sketch21.MapMode = "FlatFace"
sketch21.AttachmentOffset = App.Placement(App.Vector(0, 0, -515), App.Rotation())
sketch21.addGeometry(Part.Circle(App.Vector(150, -6.5, 0), App.Vector(0, 0, 1), 2), False)
sketch21.addConstraint([
    Sketcher.Constraint("Diameter", 0, Q("4 mm")),
    Sketcher.Constraint("DistanceX", -1, 1, 0, 3, Q("150 mm")),
    Sketcher.Constraint("DistanceY", 0, 3, -1, 1, Q("6.5 mm")),
])
pad20 = doc.addObject("PartDesign::Pad", "Pad019")
body21.addObject(pad20)
pad20.Profile = sketch21
pad20.Length = 1030
body22 = doc.addObject("PartDesign::Body", "Body021")

# Sketch on YZ plane
sketch22 = doc.addObject("Sketcher::SketchObject", "Sketch021")
body22.addObject(sketch22)
sketch22.AttachmentSupport = (doc.getObject("YZ_Plane021"), [""])
sketch22.MapMode = "FlatFace"
sketch22.AttachmentOffset = App.Placement(App.Vector(0, 0, -515), App.Rotation())
sketch22.addGeometry(Part.Circle(App.Vector(106, -6.5, 0), App.Vector(0, 0, 1), 2), False)
sketch22.addConstraint([
    Sketcher.Constraint("Diameter", 0, Q("4 mm")),
    Sketcher.Constraint("DistanceX", -1, 1, 0, 3, Q("106 mm")),
    Sketcher.Constraint("DistanceY", 0, 3, -1, 1, Q("6.5 mm")),
])
pad21 = doc.addObject("PartDesign::Pad", "Pad020")
body22.addObject(pad21)
pad21.Profile = sketch22
pad21.Length = 1030
body23 = doc.addObject("PartDesign::Body", "Body022")

# Sketch on YZ plane
sketch23 = doc.addObject("Sketcher::SketchObject", "Sketch022")
body23.addObject(sketch23)
sketch23.AttachmentSupport = (doc.getObject("YZ_Plane022"), [""])
sketch23.MapMode = "FlatFace"
sketch23.AttachmentOffset = App.Placement(App.Vector(0, 0, -515), App.Rotation())
sketch23.addGeometry(Part.Circle(App.Vector(62, -6.5, 0), App.Vector(0, 0, 1), 2), False)
sketch23.addConstraint([
    Sketcher.Constraint("Diameter", 0, Q("4 mm")),
    Sketcher.Constraint("DistanceX", -1, 1, 0, 3, Q("62 mm")),
    Sketcher.Constraint("DistanceY", 0, 3, -1, 1, Q("6.5 mm")),
])
pad22 = doc.addObject("PartDesign::Pad", "Pad021")
body23.addObject(pad22)
pad22.Profile = sketch23
pad22.Length = 1030
body.AllowCompound = True
doc.recompute()

boolean2 = doc.addObject("PartDesign::Boolean", "Boolean001")
body.addObject(boolean2)
boolean2.Type = "Fuse"
boolean2.addObjects([body2])
doc.recompute()

boolean3 = doc.addObject("PartDesign::Boolean", "Boolean002")
body.addObject(boolean3)
boolean3.Type = "Fuse"
boolean3.addObjects([body3])

# Sketch on YZ plane
sketch24 = doc.addObject("Sketcher::SketchObject", "Sketch023")
body.addObject(sketch24)
sketch24.AttachmentSupport = (doc.YZ_Plane, [""])
sketch24.MapMode = "FlatFace"
sketch24.AttachmentOffset = App.Placement(App.Vector(0, 0, 515), App.Rotation())
add_polygon(sketch24, [(720, -12.5), (695, -12.5), (695, 12.5), (720, 12.5)])  # lines 0-3
sketch24.addConstraint([
    Sketcher.Constraint("Horizontal", 0),
    Sketcher.Constraint("Vertical", 1),
    Sketcher.Constraint("Horizontal", 2),
    Sketcher.Constraint("Vertical", 3),
    Sketcher.Constraint("Equal", 2, 1),
    Sketcher.Constraint("DistanceX", 0, 2, 0, 1, Q("25 mm")),
    Sketcher.Constraint("DistanceX", -1, 1, 0, 2, Q("695 mm")),
    Sketcher.Constraint("DistanceY", 0, 2, -1, 1, Q("12.5 mm")),
])
pad23 = doc.addObject("PartDesign::Pad", "Pad022")
body.addObject(pad23)
pad23.Profile = sketch24
pad23.Length = 1030
pad23.Reversed = True

# Sketch on XY plane
sketch25 = doc.addObject("Sketcher::SketchObject", "Sketch024")
body.addObject(sketch25)
sketch25.AttachmentSupport = (doc.XY_Plane, [""])
sketch25.MapMode = "FlatFace"
sketch25.AttachmentOffset = App.Placement(App.Vector(0, 0, 12.5), App.Rotation())
add_polygon(sketch25, [(-515, 725), (-515, 715), (515, 715), (515, 725)])  # lines 0-3
sketch25.addConstraint([
    Sketcher.Constraint("Vertical", 0),
    Sketcher.Constraint("Horizontal", 1),
    Sketcher.Constraint("Vertical", 2),
    Sketcher.Constraint("Horizontal", 3),
    Sketcher.Constraint("DistanceX", 1, 1, 1, 2, Q("1030 mm")),
    Sketcher.Constraint("DistanceY", 0, 2, 0, 1, Q("10 mm")),
    Sketcher.Constraint("DistanceX", 0, 2, -1, 1, Q("515 mm")),
    Sketcher.Constraint("DistanceY", -1, 1, 0, 2, Q("715 mm")),
])
pocket2 = doc.addObject("PartDesign::Pocket", "Pocket001")
body.addObject(pocket2)
pocket2.Profile = sketch25
pocket2.Type = "ThroughAll"

doc.recompute()
